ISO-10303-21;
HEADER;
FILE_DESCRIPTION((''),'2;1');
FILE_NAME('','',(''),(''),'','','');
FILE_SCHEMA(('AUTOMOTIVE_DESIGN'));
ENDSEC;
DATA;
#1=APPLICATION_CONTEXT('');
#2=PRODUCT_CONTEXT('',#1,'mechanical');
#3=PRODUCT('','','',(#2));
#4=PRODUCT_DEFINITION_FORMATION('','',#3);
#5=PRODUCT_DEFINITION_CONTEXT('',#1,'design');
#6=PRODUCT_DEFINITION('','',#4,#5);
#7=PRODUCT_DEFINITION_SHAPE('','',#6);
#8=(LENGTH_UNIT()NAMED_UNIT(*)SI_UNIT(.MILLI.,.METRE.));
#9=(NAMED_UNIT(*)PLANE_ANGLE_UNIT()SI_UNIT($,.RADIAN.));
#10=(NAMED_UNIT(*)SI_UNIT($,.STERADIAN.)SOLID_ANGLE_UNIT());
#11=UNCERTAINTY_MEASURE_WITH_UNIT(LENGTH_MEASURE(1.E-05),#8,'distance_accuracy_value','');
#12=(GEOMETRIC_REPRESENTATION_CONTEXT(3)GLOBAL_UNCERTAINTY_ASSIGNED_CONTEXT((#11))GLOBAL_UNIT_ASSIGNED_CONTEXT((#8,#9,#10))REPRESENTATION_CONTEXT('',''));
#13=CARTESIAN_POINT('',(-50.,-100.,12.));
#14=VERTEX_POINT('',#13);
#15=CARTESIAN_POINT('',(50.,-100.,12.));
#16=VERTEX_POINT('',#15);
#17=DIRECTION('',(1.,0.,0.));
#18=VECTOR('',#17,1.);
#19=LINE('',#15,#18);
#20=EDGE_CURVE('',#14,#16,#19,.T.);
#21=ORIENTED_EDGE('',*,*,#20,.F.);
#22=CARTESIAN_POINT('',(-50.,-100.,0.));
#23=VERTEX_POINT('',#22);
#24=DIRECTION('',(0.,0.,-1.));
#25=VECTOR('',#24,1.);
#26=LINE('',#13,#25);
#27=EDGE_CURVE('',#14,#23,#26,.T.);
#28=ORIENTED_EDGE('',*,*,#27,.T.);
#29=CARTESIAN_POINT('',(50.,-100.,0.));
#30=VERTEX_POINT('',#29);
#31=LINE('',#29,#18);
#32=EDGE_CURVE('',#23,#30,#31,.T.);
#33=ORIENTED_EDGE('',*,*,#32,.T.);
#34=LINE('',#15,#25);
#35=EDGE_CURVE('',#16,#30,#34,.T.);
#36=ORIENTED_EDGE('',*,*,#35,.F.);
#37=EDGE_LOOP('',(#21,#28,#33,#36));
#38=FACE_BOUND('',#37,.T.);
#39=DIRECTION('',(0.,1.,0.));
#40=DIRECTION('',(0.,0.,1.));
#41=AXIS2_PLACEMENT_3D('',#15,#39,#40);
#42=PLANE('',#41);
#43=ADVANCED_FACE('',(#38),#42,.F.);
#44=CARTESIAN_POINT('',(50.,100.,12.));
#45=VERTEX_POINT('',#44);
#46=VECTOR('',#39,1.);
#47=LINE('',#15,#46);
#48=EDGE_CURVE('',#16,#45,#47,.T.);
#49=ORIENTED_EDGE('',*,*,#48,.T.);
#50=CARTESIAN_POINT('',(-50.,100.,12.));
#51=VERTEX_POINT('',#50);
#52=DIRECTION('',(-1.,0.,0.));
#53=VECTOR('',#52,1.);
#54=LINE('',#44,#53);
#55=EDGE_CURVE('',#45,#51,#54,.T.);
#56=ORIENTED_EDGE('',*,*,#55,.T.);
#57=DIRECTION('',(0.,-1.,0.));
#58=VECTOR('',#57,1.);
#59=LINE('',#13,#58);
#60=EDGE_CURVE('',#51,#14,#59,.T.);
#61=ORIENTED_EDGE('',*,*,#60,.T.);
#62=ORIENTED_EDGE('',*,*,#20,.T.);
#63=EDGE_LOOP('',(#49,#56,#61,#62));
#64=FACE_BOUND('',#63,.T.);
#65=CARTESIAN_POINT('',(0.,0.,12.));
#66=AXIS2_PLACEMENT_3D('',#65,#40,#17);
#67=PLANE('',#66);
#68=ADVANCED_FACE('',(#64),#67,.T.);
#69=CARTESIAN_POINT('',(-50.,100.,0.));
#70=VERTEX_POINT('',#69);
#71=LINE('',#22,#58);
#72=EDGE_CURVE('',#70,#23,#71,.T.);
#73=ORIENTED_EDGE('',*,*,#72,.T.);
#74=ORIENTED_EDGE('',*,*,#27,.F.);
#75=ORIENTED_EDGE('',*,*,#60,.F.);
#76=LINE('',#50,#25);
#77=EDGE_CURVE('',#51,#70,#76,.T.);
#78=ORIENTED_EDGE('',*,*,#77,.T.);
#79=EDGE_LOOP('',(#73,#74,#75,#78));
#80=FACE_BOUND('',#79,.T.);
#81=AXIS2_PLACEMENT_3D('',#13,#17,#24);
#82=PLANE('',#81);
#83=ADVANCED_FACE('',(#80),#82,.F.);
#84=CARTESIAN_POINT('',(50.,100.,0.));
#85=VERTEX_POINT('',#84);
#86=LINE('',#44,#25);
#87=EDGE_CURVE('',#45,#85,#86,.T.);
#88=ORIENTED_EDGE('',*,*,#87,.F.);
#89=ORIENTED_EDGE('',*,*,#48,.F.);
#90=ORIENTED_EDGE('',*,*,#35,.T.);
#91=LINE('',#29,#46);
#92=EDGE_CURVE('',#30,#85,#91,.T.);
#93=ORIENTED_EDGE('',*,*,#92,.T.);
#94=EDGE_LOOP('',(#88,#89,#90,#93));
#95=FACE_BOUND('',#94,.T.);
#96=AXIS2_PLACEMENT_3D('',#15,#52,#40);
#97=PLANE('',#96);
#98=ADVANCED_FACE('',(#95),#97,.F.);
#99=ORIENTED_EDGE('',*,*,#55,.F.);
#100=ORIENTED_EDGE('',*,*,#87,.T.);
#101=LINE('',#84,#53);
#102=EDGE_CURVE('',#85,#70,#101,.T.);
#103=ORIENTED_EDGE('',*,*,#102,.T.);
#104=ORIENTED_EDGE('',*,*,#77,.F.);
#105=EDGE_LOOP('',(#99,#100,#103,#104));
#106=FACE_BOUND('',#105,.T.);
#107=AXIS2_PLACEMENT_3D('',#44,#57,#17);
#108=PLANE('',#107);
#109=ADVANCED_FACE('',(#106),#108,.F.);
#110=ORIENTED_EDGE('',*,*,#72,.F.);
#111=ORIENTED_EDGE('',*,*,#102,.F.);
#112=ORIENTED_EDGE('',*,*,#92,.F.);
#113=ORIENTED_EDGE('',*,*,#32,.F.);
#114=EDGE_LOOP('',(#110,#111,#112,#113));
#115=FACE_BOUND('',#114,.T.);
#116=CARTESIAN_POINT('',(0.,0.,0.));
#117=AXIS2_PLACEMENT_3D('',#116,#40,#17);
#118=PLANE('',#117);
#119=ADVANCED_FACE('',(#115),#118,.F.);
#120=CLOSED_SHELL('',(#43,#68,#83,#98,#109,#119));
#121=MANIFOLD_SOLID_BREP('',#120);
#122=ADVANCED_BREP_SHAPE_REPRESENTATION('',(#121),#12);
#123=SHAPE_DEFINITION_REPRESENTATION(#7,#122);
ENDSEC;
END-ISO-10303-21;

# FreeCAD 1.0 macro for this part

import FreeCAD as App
import Part
import Sketcher
Q = App.Units.Quantity

doc = App.newDocument("Part")
body = doc.addObject("PartDesign::Body", "Body")

# Sketch on XY plane
sketch1 = body.newObject("Sketcher::SketchObject", "Sketch")
sketch1.AttachmentSupport = (doc.getObject("XY_Plane"), [""])
sketch1.MapMode = "FlatFace"
sketch1.addGeometry(Part.LineSegment(App.Vector(-50, 100, 0), App.Vector(-50, -100, 0)), False)
sketch1.addGeometry(Part.LineSegment(App.Vector(-50, -100, 0), App.Vector(50, -100, 0)), False)
sketch1.addGeometry(Part.LineSegment(App.Vector(50, -100, 0), App.Vector(50, 100, 0)), False)
sketch1.addGeometry(Part.LineSegment(App.Vector(50, 100, 0), App.Vector(-50, 100, 0)), False)
sketch1.addConstraint(Sketcher.Constraint("Coincident", 0, 2, 1, 1))
sketch1.addConstraint(Sketcher.Constraint("Coincident", 1, 2, 2, 1))
sketch1.addConstraint(Sketcher.Constraint("Coincident", 2, 2, 3, 1))
sketch1.addConstraint(Sketcher.Constraint("Coincident", 3, 2, 0, 1))
sketch1.addConstraint(Sketcher.Constraint("Vertical", 0))
sketch1.addConstraint(Sketcher.Constraint("Horizontal", 1))
sketch1.addConstraint(Sketcher.Constraint("Vertical", 2))
sketch1.addConstraint(Sketcher.Constraint("Horizontal", 3))
sketch1.addConstraint(Sketcher.Constraint("Symmetric", 0, 2, 2, 2, -1, 1))
sketch1.addConstraint(Sketcher.Constraint("DistanceX", 1, 1, 1, 2, Q("100 mm")))
sketch1.addConstraint(Sketcher.Constraint("DistanceY", 0, 2, 0, 1, Q("200 mm")))
pad1 = body.newObject("PartDesign::Pad", "Pad")
pad1.Profile = sketch1
pad1.Length = 12

doc.recompute()
